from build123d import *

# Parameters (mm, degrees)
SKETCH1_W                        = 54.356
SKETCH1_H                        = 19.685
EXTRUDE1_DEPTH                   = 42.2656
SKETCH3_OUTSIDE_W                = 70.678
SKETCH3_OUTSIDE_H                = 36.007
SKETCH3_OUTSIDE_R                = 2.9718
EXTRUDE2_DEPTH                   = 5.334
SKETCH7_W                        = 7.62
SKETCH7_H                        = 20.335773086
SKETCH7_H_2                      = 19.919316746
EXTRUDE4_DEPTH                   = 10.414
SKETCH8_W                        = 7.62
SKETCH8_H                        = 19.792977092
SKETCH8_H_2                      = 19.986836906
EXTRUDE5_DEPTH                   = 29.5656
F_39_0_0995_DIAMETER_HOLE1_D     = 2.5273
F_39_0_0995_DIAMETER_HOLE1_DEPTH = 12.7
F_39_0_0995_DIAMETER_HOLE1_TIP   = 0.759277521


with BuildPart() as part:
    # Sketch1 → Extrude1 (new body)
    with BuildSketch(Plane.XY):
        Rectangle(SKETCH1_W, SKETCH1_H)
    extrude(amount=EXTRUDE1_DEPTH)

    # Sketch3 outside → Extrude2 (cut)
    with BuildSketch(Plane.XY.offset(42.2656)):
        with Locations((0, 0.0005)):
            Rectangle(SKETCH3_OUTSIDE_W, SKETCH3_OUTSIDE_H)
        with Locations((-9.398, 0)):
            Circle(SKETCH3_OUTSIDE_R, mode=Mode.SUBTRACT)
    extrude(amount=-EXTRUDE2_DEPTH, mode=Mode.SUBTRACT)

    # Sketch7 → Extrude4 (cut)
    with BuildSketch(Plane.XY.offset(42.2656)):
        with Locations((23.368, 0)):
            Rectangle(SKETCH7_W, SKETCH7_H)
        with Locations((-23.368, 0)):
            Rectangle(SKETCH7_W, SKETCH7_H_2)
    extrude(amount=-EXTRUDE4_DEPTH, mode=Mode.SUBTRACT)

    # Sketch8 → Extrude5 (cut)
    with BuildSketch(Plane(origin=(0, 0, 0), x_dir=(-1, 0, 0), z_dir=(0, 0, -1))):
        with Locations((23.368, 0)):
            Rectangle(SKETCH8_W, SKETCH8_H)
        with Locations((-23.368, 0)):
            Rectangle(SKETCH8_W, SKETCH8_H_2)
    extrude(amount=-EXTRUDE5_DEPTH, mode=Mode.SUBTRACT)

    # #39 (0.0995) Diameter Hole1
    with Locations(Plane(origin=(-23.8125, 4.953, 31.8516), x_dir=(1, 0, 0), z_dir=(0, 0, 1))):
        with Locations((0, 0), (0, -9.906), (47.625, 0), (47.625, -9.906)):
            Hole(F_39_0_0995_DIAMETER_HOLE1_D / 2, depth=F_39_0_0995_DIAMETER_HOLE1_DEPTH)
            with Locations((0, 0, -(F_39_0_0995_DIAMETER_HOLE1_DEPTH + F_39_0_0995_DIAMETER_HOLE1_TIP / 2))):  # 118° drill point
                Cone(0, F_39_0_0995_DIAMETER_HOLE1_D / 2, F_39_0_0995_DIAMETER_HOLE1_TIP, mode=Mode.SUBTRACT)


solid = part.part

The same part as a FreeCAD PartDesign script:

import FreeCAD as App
import Part
import Sketcher
Q = App.Units.Quantity


def add_polygon(sketch, points):
    """Adds a closed chain of lines whose ends are joined by coincident constraints."""
    first, n = sketch.GeometryCount, len(points)
    for a, b in zip(points, points[1:] + points[:1]):
        sketch.addGeometry(Part.LineSegment(App.Vector(*a, 0), App.Vector(*b, 0)), False)
    for i in range(n):
        sketch.addConstraint(Sketcher.Constraint("Coincident", first + i, 2, first + (i + 1) % n, 1))

doc = App.newDocument("Part")
body = doc.addObject("PartDesign::Body", "Body")

# Sketch on XY plane
sketch1 = body.newObject("Sketcher::SketchObject", "Sketch")
sketch1.AttachmentSupport = (doc.getObject("XY_Plane"), [""])
sketch1.MapMode = "FlatFace"
add_polygon(sketch1, [(-27, 10), (-27, -10), (27, -10), (27, 10)])  # lines 0-3
sketch1.addConstraint([
    Sketcher.Constraint("Vertical", 0),
    Sketcher.Constraint("Horizontal", 1),
    Sketcher.Constraint("Vertical", 2),
    Sketcher.Constraint("Horizontal", 3),
    Sketcher.Constraint("Symmetric", 0, 2, 2, 2, -1, 1),
    Sketcher.Constraint("DistanceX", 1, 1, 1, 2, Q("2.14 in")),
    Sketcher.Constraint("DistanceY", 0, 2, 0, 1, Q("0.775 in")),
])
pad1 = body.newObject("PartDesign::Pad", "Pad")
pad1.Profile = sketch1
pad1.Length = Q("1.664 in")

# Sketch on XY plane
sketch2 = body.newObject("Sketcher::SketchObject", "Sketch001")
sketch2.AttachmentSupport = (doc.getObject("XY_Plane"), [""])
sketch2.MapMode = "FlatFace"
sketch2.AttachmentOffset = App.Placement(App.Vector(0, 0, 1.664 * 25.4), App.Rotation())
add_polygon(sketch2, [(-35.3, 18), (-35.3, -18), (35.3, -18), (35.3, 18)])  # lines 0-3
sketch2.addGeometry(Part.Circle(App.Vector(-9.4, 0, 0), App.Vector(0, 0, 1), 3), False)  # 4
sketch2.addConstraint([
    Sketcher.Constraint("Vertical", 0),
    Sketcher.Constraint("Horizontal", 1),
    Sketcher.Constraint("Vertical", 2),
    Sketcher.Constraint("Horizontal", 3),
    Sketcher.Constraint("PointOnObject", 4, 3, -1),
    Sketcher.Constraint("Diameter", 4, Q("0.234 in")),
    Sketcher.Constraint("DistanceX", 4, 3, -1, 1, Q("0.37 in")),
    Sketcher.Constraint("DistanceX", 1, 1, 1, 2, Q("70.678 mm")),
    Sketcher.Constraint("DistanceY", 0, 2, 0, 1, Q("36.007 mm")),
    Sketcher.Constraint("DistanceX", 0, 2, -1, 1, Q("35.339 mm")),
    Sketcher.Constraint("DistanceY", 0, 2, -1, 1, Q("18.003 mm")),
])
pocket1 = body.newObject("PartDesign::Pocket", "Pocket")
pocket1.Profile = sketch2
pocket1.Length = Q("0.21 in")

# Sketch on XY plane
sketch3 = body.newObject("Sketcher::SketchObject", "Sketch002")
sketch3.AttachmentSupport = (doc.getObject("XY_Plane"), [""])
sketch3.MapMode = "FlatFace"
sketch3.AttachmentOffset = App.Placement(App.Vector(0, 0, 1.664 * 25.4), App.Rotation())
add_polygon(sketch3, [(20, 10), (20, -10), (27, -10), (27, 10)])  # lines 0-3
add_polygon(sketch3, [(-27, 10), (-27, -10), (-20, -10), (-20, 10)])  # lines 4-7
sketch3.addConstraint([
    Sketcher.Constraint("Vertical", 0),
    Sketcher.Constraint("Horizontal", 1),
    Sketcher.Constraint("Vertical", 2),
    Sketcher.Constraint("Horizontal", 3),
    Sketcher.Constraint("Vertical", 4),
    Sketcher.Constraint("Horizontal", 5),
    Sketcher.Constraint("Vertical", 6),
    Sketcher.Constraint("Horizontal", 7),
    Sketcher.Constraint("Equal", 3, 5),
    Sketcher.Constraint("DistanceX", 1, 1, 1, 2, Q("0.3 in")),
    Sketcher.Constraint("DistanceX", -1, 1, 0, 2, Q("0.77 in")),
    Sketcher.Constraint("DistanceX", 4, 2, -1, 1, Q("1.07 in")),
    Sketcher.Constraint("DistanceY", 0, 2, 0, 1, Q("20.335773 mm")),
    Sketcher.Constraint("DistanceY", 4, 2, 4, 1, Q("19.919317 mm")),
    Sketcher.Constraint("DistanceY", 4, 2, -1, 1, Q("9.959658 mm")),
    Sketcher.Constraint("DistanceY", 0, 2, 4, 2, Q("0.208228 mm")),
])
pocket2 = body.newObject("PartDesign::Pocket", "Pocket001")
pocket2.Profile = sketch3
pocket2.Length = Q("0.41 in")

# Sketch on XY plane
sketch4 = body.newObject("Sketcher::SketchObject", "Sketch003")
sketch4.AttachmentSupport = (doc.getObject("XY_Plane"), [""])
sketch4.MapMode = "FlatFace"
add_polygon(sketch4, [(-20, 10), (-20, -10), (-27, -10), (-27, 10)])  # lines 0-3
add_polygon(sketch4, [(27, 10), (27, -10), (20, -10), (20, 10)])  # lines 4-7
sketch4.addConstraint([
    Sketcher.Constraint("Vertical", 0),
    Sketcher.Constraint("Horizontal", 1),
    Sketcher.Constraint("Vertical", 2),
    Sketcher.Constraint("Horizontal", 3),
    Sketcher.Constraint("Vertical", 4),
    Sketcher.Constraint("Horizontal", 5),
    Sketcher.Constraint("Vertical", 6),
    Sketcher.Constraint("Horizontal", 7),
    Sketcher.Constraint("Equal", 3, 5),
    Sketcher.Constraint("DistanceX", 1, 2, 1, 1, Q("0.3 in")),
    Sketcher.Constraint("DistanceX", 0, 2, -1, 1, Q("0.77 in")),
    Sketcher.Constraint("DistanceX", -1, 1, 4, 2, Q("1.07 in")),
    Sketcher.Constraint("DistanceY", 0, 2, 0, 1, Q("19.792977 mm")),
    Sketcher.Constraint("DistanceY", 4, 2, 4, 1, Q("19.986837 mm")),
    Sketcher.Constraint("DistanceY", 0, 2, -1, 1, Q("9.896489 mm")),
    Sketcher.Constraint("DistanceY", 4, 2, -1, 1, Q("9.993418 mm")),
])
pocket3 = body.newObject("PartDesign::Pocket", "Pocket002")
pocket3.Profile = sketch4
pocket3.Length = Q("1.164 in")
pocket3.Reversed = True

# Sketch on XY plane
sketch5 = body.newObject("Sketcher::SketchObject", "Sketch004")
sketch5.AttachmentSupport = (doc.getObject("XY_Plane"), [""])
sketch5.MapMode = "FlatFace"
sketch5.AttachmentOffset = App.Placement(App.Vector(0, 0, 1.254 * 25.4), App.Rotation())
sketch5.addGeometry([
    Part.Circle(App.Vector(-23.8, 5, 0), App.Vector(0, 0, 1), 1.3),
    Part.Circle(App.Vector(-23.8, -5, 0), App.Vector(0, 0, 1), 1.3),
    Part.Circle(App.Vector(23.8, 5, 0), App.Vector(0, 0, 1), 1.3),
    Part.Circle(App.Vector(23.8, -5, 0), App.Vector(0, 0, 1), 1.3),
], False)
sketch5.addConstraint([
    Sketcher.Constraint("Equal", 0, 1),
    Sketcher.Constraint("Equal", 1, 2),
    Sketcher.Constraint("Equal", 2, 3),
    Sketcher.Constraint("Symmetric", 1, 3, 2, 3, -1, 1),
    Sketcher.Constraint("Symmetric", 0, 3, 3, 3, -1, 1),
    Sketcher.Constraint("Symmetric", 0, 3, 2, 3, -2),
    Sketcher.Constraint("Diameter", 0, Q("0.0995 in")),
    Sketcher.Constraint("DistanceY", 1, 3, 0, 3, Q("0.39 in")),
    Sketcher.Constraint("DistanceX", 0, 3, -1, 1, Q("0.9375 in")),
])
doc.recompute()
hole = body.newObject("PartDesign::Hole", "Hole")
hole.Profile = sketch5
hole.ThreadType = "None"
hole.Diameter = Q("0.0995 in")
hole.DepthType = "Dimension"
hole.Depth = Q("0.5 in")
hole.DrillPoint = "Angled"
hole.DrillPointAngle = 118

doc.recompute()
